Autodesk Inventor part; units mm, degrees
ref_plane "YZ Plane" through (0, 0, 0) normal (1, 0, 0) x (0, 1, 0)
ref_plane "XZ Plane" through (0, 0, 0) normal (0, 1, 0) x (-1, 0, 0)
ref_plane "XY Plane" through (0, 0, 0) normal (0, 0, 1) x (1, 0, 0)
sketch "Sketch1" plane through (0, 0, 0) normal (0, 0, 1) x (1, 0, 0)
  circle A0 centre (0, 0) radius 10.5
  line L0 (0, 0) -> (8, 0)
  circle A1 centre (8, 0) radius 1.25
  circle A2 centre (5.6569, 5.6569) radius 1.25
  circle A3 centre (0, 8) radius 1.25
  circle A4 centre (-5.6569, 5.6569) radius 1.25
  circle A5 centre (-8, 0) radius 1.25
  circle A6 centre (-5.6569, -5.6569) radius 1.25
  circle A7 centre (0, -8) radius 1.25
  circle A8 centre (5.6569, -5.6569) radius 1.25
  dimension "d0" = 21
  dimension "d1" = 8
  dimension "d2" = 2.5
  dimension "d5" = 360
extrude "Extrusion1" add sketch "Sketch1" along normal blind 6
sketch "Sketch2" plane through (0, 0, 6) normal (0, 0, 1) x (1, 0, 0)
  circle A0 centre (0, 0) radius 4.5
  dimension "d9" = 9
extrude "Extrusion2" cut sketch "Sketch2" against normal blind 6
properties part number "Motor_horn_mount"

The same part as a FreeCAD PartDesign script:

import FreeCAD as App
import Part
import Sketcher
from FreeCAD import Vector
Q = App.Units.Quantity

doc = App.newDocument("Part")
body = doc.addObject("PartDesign::Body", "Body")

# Sketch on XY plane
sketch1 = body.newObject("Sketcher::SketchObject", "Sketch")
sketch1.AttachmentSupport = (doc.getObject("XY_Plane"), [""])
sketch1.MapMode = "FlatFace"
sketch1.addGeometry(Part.Circle(Vector(0, 0, 0), Vector(0, 0, 1), 10.5), False)
sketch1.addGeometry(Part.Circle(Vector(-5.7, -5.7, 0), Vector(0, 0, 1), 1.2), False)
sketch1.addGeometry(Part.Circle(Vector(0, -8, 0), Vector(0, 0, 1), 1.2), False)
sketch1.addGeometry(Part.Circle(Vector(5.7, -5.7, 0), Vector(0, 0, 1), 1.2), False)
sketch1.addGeometry(Part.Circle(Vector(-8, 0, 0), Vector(0, 0, 1), 1.2), False)
sketch1.addGeometry(Part.Circle(Vector(-5.7, 5.7, 0), Vector(0, 0, 1), 1.2), False)
sketch1.addGeometry(Part.Circle(Vector(8, 0, 0), Vector(0, 0, 1), 1.2), False)
sketch1.addGeometry(Part.Circle(Vector(0, 8, 0), Vector(0, 0, 1), 1.2), False)
sketch1.addGeometry(Part.Circle(Vector(5.7, 5.7, 0), Vector(0, 0, 1), 1.2), False)
sketch1.addConstraint(Sketcher.Constraint("Coincident", 0, 3, -1, 1))
sketch1.addConstraint(Sketcher.Constraint("Equal", 1, 2))
sketch1.addConstraint(Sketcher.Constraint("Equal", 2, 3))
sketch1.addConstraint(Sketcher.Constraint("Equal", 3, 4))
sketch1.addConstraint(Sketcher.Constraint("Equal", 4, 5))
sketch1.addConstraint(Sketcher.Constraint("Equal", 5, 6))
sketch1.addConstraint(Sketcher.Constraint("Equal", 6, 7))
sketch1.addConstraint(Sketcher.Constraint("Equal", 7, 8))
sketch1.addConstraint(Sketcher.Constraint("Symmetric", 3, 3, 5, 3, -1, 1))
sketch1.addConstraint(Sketcher.Constraint("Symmetric", 4, 3, 6, 3, -1, 1))
sketch1.addConstraint(Sketcher.Constraint("Symmetric", 2, 3, 7, 3, -1, 1))
sketch1.addConstraint(Sketcher.Constraint("Symmetric", 1, 3, 8, 3, -1, 1))
sketch1.addConstraint(Sketcher.Constraint("Symmetric", 1, 3, 3, 3, -2))
sketch1.addConstraint(Sketcher.Constraint("PointOnObject", 2, 3, -2))
sketch1.addConstraint(Sketcher.Constraint("PointOnObject", 4, 3, -1))
sketch1.addConstraint(Sketcher.Constraint("Diameter", 0, Q("21 mm")))
sketch1.addConstraint(Sketcher.Constraint("Diameter", 1, Q("2.5 mm")))
sketch1.addConstraint(Sketcher.Constraint("DistanceY", 2, 3, -1, 1, Q("8 mm")))
sketch1.addConstraint(Sketcher.Constraint("DistanceX", 4, 3, -1, 1, Q("8 mm")))
sketch1.addConstraint(Sketcher.Constraint("DistanceX", 1, 3, -1, 1, Q("5.657 mm")))
sketch1.addConstraint(Sketcher.Constraint("DistanceY", 1, 3, -1, 1, Q("5.657 mm")))
pad1 = body.newObject("PartDesign::Pad", "Pad")
pad1.Profile = sketch1
pad1.Length = 6

# Sketch on XY plane
sketch2 = body.newObject("Sketcher::SketchObject", "Sketch001")
sketch2.AttachmentSupport = (doc.getObject("XY_Plane"), [""])
sketch2.MapMode = "FlatFace"
sketch2.AttachmentOffset = App.Placement(Vector(0, 0, 6), App.Rotation())
sketch2.addGeometry(Part.Circle(Vector(0, 0, 0), Vector(0, 0, 1), 4.5), False)
sketch2.addConstraint(Sketcher.Constraint("Coincident", 0, 3, -1, 1))
sketch2.addConstraint(Sketcher.Constraint("Diameter", 0, Q("9 mm")))
pocket1 = body.newObject("PartDesign::Pocket", "Pocket")
pocket1.Profile = sketch2
pocket1.Length = 6

doc.recompute()
